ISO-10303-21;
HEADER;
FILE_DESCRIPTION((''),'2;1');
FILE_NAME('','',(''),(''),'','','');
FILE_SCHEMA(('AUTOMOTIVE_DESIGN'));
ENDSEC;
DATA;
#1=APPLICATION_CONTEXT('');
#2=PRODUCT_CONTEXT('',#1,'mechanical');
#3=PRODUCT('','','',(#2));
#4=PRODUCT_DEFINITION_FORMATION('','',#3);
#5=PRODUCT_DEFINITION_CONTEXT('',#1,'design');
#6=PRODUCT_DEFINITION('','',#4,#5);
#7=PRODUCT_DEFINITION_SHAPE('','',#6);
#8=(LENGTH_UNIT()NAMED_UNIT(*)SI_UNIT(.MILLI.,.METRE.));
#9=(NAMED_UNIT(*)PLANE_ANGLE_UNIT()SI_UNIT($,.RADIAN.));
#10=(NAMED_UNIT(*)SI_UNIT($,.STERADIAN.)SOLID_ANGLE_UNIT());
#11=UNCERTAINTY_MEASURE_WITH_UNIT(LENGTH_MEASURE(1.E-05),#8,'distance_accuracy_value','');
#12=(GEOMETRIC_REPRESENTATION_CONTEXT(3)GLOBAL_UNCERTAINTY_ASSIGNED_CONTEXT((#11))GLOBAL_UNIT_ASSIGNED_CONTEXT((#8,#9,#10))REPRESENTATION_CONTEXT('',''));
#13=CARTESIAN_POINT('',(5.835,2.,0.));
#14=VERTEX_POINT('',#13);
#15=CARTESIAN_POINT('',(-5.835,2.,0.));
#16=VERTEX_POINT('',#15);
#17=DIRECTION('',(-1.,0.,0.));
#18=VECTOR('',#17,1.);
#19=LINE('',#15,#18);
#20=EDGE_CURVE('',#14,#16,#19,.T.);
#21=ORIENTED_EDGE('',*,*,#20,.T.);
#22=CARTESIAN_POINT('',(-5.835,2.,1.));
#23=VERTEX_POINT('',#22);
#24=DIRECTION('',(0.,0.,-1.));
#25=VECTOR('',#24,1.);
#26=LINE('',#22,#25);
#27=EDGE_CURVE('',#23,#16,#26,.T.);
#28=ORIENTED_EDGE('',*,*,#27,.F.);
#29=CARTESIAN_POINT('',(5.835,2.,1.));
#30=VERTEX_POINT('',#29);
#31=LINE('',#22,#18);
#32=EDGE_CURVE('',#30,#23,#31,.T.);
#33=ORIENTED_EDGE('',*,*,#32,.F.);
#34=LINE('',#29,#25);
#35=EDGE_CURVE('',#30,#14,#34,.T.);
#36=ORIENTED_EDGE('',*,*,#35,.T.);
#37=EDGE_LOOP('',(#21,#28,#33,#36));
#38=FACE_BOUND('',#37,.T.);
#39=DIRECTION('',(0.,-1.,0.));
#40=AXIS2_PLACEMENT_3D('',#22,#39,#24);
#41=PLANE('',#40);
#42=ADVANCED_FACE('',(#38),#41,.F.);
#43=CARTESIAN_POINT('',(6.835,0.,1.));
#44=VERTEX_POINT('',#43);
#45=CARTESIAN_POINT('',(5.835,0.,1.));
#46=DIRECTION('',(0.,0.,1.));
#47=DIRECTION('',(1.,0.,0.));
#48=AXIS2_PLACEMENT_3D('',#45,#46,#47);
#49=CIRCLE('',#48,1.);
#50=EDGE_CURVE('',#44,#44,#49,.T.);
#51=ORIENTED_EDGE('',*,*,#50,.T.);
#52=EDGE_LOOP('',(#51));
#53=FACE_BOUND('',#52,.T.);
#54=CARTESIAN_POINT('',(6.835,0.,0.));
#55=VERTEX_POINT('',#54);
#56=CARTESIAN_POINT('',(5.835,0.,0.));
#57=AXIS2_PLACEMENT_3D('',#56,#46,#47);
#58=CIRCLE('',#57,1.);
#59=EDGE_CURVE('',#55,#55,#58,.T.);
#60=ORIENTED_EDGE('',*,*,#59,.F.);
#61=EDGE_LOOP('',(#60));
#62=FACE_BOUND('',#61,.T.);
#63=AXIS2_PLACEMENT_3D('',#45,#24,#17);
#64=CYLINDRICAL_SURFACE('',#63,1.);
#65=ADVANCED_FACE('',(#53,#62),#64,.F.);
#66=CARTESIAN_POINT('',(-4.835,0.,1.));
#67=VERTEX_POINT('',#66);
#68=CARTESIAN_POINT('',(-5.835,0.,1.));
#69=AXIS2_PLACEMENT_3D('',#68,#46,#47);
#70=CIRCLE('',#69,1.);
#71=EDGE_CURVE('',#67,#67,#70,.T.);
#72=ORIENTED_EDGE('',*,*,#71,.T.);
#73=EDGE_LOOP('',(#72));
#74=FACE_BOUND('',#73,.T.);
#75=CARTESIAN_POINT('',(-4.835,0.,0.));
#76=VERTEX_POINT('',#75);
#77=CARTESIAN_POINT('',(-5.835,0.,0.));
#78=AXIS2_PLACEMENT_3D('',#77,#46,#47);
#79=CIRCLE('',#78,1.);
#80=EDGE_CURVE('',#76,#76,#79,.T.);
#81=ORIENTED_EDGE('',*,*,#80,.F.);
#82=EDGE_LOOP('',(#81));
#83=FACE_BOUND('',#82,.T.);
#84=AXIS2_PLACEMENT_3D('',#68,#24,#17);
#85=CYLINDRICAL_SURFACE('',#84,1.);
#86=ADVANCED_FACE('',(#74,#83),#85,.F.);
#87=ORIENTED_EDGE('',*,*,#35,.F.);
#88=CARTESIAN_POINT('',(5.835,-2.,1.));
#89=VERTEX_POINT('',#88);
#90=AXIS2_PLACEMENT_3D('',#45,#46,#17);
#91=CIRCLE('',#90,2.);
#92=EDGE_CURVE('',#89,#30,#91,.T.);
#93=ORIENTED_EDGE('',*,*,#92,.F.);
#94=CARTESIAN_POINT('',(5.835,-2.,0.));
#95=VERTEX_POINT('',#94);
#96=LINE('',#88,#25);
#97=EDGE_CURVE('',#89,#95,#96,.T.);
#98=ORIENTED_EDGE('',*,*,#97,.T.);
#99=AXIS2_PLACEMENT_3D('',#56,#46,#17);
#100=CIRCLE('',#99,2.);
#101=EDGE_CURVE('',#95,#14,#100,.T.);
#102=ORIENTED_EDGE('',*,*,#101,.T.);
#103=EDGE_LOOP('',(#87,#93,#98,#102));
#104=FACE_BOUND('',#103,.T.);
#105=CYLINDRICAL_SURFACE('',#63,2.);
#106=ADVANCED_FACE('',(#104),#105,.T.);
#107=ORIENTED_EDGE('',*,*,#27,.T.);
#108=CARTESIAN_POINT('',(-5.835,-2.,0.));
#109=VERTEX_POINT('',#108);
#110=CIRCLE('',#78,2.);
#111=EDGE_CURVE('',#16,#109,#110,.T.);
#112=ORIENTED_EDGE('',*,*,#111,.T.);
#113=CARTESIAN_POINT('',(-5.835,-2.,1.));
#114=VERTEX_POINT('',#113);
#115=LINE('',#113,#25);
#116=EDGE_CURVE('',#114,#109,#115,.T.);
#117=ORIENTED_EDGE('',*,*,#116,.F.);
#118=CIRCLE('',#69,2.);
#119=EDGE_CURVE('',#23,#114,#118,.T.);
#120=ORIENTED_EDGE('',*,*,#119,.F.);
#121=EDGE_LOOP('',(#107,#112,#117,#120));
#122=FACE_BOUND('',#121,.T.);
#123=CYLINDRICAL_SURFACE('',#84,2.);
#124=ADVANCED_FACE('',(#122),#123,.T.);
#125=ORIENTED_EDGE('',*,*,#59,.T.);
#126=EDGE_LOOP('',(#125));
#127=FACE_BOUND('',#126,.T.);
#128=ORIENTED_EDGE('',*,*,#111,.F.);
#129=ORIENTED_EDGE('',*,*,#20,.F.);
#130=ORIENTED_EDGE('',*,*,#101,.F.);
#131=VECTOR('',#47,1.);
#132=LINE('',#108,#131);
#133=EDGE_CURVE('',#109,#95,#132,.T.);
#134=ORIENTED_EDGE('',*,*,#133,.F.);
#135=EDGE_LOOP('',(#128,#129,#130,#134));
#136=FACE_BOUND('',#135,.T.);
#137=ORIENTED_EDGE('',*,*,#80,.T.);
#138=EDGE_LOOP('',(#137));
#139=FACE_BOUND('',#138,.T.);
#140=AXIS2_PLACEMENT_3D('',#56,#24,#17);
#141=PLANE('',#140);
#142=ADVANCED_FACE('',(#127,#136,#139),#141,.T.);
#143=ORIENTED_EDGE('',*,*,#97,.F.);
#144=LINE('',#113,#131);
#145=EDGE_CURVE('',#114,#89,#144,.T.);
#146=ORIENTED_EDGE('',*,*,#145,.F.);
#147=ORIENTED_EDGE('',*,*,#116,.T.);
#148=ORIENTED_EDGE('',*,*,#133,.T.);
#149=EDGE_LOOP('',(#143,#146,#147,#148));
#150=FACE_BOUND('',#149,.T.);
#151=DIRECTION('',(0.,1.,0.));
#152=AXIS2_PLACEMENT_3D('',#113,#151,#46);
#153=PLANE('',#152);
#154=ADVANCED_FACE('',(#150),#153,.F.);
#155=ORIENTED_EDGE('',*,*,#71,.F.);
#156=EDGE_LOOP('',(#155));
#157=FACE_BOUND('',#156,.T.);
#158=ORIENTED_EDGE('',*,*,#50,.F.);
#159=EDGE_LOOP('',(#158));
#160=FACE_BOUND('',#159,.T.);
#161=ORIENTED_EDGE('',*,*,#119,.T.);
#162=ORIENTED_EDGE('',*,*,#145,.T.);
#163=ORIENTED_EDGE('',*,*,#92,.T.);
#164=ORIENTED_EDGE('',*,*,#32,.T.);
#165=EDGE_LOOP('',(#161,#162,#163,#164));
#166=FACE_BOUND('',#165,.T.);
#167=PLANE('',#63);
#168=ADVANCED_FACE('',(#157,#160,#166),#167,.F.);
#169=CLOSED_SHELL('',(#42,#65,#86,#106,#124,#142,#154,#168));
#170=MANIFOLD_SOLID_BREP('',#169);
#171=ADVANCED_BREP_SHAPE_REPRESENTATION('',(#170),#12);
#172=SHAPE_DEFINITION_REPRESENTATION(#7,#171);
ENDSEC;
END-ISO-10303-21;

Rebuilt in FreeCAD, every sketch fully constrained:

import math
import FreeCAD as App
import Part
import Sketcher

V = App.Vector
Q = App.Units.Quantity

doc = App.newDocument("Part")
body = doc.addObject("PartDesign::Body", "Body")

# Sketch on XY plane
sketch1 = doc.addObject("Sketcher::SketchObject", "Sketch")
body.addObject(sketch1)
sketch1.AttachmentSupport = (doc.XY_Plane, [""])
sketch1.MapMode = "FlatFace"
sketch1.addGeometry([
    Part.LineSegment(V(5.8, 2, 0), V(-5.8, 2, 0)),  # 0
    Part.ArcOfCircle(Part.Circle(V(-5.8, 0, 0), V(0, 0, 1), 2), math.radians(90), math.radians(270)),  # 1
    Part.LineSegment(V(-5.8, -2, 0), V(5.8, -2, 0)),  # 2
    Part.ArcOfCircle(Part.Circle(V(5.8, 0, 0), V(0, 0, 1), 2), math.radians(-90), math.radians(90)),  # 3
    Part.Circle(V(5.8, 0, 0), V(0, 0, 1), 1),  # 4
    Part.Circle(V(-5.8, 0, 0), V(0, 0, 1), 1),  # 5
], False)
sketch1.addConstraint([
    Sketcher.Constraint("Tangent", 0, 2, 1, 1),
    Sketcher.Constraint("Tangent", 1, 2, 2, 1),
    Sketcher.Constraint("Tangent", 2, 2, 3, 1),
    Sketcher.Constraint("Tangent", 3, 2, 0, 1),
    Sketcher.Constraint("Horizontal", 0),
    Sketcher.Constraint("Horizontal", 2),
    Sketcher.Constraint("Coincident", 4, 3, 3, 3),
    Sketcher.Constraint("Coincident", 5, 3, 1, 3),
    Sketcher.Constraint("Equal", 4, 5),
    Sketcher.Constraint("Symmetric", 1, 3, 3, 3, -1, 1),
    Sketcher.Constraint("Diameter", 4, Q("2 mm")),
    Sketcher.Constraint("Radius", 1, Q("2 mm")),
    Sketcher.Constraint("DistanceX", 0, 2, 0, 1, Q("11.67 mm")),
])
pad1 = doc.addObject("PartDesign::Pad", "Pad")
body.addObject(pad1)
pad1.Profile = sketch1
pad1.Length = 1

doc.recompute()
